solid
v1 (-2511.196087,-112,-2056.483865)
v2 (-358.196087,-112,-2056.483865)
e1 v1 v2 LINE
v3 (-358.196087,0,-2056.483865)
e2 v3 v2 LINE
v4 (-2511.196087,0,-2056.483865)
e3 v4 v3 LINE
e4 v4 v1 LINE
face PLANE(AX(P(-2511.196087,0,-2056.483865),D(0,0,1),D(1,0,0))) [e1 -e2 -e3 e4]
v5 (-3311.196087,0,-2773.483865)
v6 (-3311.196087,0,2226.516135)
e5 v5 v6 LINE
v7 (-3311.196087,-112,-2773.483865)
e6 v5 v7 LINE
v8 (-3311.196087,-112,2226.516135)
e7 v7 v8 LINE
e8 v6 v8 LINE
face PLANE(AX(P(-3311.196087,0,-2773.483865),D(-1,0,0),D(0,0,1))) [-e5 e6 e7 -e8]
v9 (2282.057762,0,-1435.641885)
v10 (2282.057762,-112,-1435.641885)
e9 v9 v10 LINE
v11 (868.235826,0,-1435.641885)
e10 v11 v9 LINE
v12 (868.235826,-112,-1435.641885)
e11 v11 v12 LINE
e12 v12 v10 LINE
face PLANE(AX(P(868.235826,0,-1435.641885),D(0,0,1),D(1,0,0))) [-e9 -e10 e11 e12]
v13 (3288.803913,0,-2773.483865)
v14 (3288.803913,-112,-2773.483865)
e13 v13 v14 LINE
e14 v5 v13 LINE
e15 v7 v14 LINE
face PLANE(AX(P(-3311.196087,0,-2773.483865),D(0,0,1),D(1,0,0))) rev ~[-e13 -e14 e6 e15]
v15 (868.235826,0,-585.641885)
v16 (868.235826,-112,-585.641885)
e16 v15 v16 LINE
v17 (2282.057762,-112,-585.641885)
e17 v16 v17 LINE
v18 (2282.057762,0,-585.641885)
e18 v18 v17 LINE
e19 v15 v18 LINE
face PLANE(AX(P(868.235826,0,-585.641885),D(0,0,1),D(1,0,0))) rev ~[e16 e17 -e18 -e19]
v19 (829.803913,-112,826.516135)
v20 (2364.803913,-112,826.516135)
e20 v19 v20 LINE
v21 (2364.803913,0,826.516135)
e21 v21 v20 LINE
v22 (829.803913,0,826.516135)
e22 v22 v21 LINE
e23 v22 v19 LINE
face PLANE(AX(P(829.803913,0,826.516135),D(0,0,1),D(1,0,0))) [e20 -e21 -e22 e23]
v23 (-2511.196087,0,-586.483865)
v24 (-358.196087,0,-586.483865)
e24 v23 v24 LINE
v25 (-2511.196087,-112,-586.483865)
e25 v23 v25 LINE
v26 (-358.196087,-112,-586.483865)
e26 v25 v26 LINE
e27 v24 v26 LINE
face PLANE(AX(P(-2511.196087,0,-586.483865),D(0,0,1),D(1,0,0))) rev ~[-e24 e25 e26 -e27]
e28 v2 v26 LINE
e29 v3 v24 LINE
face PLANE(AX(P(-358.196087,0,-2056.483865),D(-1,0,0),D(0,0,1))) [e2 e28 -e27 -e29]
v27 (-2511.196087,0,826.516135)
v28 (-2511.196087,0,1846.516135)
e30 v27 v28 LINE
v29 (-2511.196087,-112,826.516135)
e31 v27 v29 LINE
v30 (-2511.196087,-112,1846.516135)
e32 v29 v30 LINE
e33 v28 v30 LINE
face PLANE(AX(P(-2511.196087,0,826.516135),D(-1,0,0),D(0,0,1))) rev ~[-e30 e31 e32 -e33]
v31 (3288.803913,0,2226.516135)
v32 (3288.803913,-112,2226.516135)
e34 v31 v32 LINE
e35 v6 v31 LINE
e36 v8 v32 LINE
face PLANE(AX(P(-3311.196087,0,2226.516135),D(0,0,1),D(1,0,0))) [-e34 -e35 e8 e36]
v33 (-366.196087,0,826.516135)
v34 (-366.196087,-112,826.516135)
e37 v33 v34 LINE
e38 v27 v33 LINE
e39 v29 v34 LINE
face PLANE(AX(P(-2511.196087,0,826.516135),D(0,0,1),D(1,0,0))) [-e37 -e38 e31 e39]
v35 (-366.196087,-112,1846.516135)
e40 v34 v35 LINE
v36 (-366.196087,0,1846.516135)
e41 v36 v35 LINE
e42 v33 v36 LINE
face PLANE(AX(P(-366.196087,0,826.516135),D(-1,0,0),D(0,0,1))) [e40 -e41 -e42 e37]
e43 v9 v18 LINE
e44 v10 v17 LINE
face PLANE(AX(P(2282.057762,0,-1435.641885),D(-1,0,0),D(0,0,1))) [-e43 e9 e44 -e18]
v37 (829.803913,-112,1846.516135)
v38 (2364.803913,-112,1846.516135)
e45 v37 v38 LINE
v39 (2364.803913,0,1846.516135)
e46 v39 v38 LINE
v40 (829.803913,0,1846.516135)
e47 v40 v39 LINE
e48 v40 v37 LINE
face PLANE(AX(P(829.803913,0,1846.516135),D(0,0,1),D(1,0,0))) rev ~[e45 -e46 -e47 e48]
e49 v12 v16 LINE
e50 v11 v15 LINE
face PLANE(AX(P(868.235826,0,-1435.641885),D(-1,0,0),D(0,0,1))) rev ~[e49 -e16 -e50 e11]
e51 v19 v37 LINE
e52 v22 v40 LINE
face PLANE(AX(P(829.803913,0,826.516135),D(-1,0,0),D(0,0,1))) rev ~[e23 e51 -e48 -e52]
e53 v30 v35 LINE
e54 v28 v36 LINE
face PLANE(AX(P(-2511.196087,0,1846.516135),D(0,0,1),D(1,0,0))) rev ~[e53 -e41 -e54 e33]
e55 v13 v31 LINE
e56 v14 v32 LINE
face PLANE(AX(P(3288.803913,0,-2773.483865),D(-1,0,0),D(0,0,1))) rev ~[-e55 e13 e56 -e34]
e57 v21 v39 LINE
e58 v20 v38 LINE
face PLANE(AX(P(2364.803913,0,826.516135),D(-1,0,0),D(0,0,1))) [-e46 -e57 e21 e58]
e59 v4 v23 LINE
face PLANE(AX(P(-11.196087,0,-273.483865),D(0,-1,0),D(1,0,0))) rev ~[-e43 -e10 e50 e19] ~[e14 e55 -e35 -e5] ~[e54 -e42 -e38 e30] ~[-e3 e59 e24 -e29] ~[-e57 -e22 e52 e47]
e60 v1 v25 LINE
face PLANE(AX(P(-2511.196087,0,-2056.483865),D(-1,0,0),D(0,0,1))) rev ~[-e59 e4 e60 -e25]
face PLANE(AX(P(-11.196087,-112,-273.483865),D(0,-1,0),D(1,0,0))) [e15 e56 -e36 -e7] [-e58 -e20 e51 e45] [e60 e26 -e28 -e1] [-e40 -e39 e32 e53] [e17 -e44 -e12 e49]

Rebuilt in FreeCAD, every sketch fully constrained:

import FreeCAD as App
import Part
import Sketcher

V = App.Vector
Q = App.Units.Quantity

doc = App.newDocument("Part")
params = doc.addObject("Spreadsheet::Sheet", "Params")
for row, (alias, value) in enumerate([
    ("sketch1_width", "6600 mm"),
    ("sketch1_width2", "2153 mm"),
    ("sketch1_width3", "2145 mm"),
    ("sketch1_width4", "1535 mm"),
    ("sketch1_height", "5000 mm"),
    ("pad1_length", "112 mm"),
], start=1):
    params.set(f"A{row}", alias)
    params.set(f"B{row}", "=" + value)
    params.setAlias(f"B{row}", alias)

body = doc.addObject("PartDesign::Body", "Body")

# Sketch on XZ plane
sketch1 = body.newObject("Sketcher::SketchObject", "Sketch")
sketch1.AttachmentSupport = (doc.getObject("XZ_Plane"), [""])
sketch1.MapMode = "FlatFace"
sketch1.addGeometry(Part.LineSegment(V(-3311, 2227, 0), V(-3311, -2773, 0)), False)
sketch1.addGeometry(Part.LineSegment(V(-3311, -2773, 0), V(3289, -2773, 0)), False)
sketch1.addGeometry(Part.LineSegment(V(3289, -2773, 0), V(3289, 2227, 0)), False)
sketch1.addGeometry(Part.LineSegment(V(3289, 2227, 0), V(-3311, 2227, 0)), False)
sketch1.addGeometry(Part.LineSegment(V(-358, -2056, 0), V(-2511, -2056, 0)), False)
sketch1.addGeometry(Part.LineSegment(V(-2511, -2056, 0), V(-2511, -586, 0)), False)
sketch1.addGeometry(Part.LineSegment(V(-2511, -586, 0), V(-358, -586, 0)), False)
sketch1.addGeometry(Part.LineSegment(V(-358, -586, 0), V(-358, -2056, 0)), False)
sketch1.addGeometry(Part.LineSegment(V(2282, -1436, 0), V(868, -1436, 0)), False)
sketch1.addGeometry(Part.LineSegment(V(868, -1436, 0), V(868, -586, 0)), False)
sketch1.addGeometry(Part.LineSegment(V(868, -586, 0), V(2282, -586, 0)), False)
sketch1.addGeometry(Part.LineSegment(V(2282, -586, 0), V(2282, -1436, 0)), False)
sketch1.addGeometry(Part.LineSegment(V(-366, 827, 0), V(-2511, 827, 0)), False)
sketch1.addGeometry(Part.LineSegment(V(-2511, 827, 0), V(-2511, 1847, 0)), False)
sketch1.addGeometry(Part.LineSegment(V(-2511, 1847, 0), V(-366, 1847, 0)), False)
sketch1.addGeometry(Part.LineSegment(V(-366, 1847, 0), V(-366, 827, 0)), False)
sketch1.addGeometry(Part.LineSegment(V(2365, 827, 0), V(830, 827, 0)), False)
sketch1.addGeometry(Part.LineSegment(V(830, 827, 0), V(830, 1847, 0)), False)
sketch1.addGeometry(Part.LineSegment(V(830, 1847, 0), V(2365, 1847, 0)), False)
sketch1.addGeometry(Part.LineSegment(V(2365, 1847, 0), V(2365, 827, 0)), False)
sketch1.addConstraint(Sketcher.Constraint("Coincident", 0, 2, 1, 1))
sketch1.addConstraint(Sketcher.Constraint("Coincident", 1, 2, 2, 1))
sketch1.addConstraint(Sketcher.Constraint("Coincident", 2, 2, 3, 1))
sketch1.addConstraint(Sketcher.Constraint("Coincident", 3, 2, 0, 1))
sketch1.addConstraint(Sketcher.Constraint("Coincident", 4, 2, 5, 1))
sketch1.addConstraint(Sketcher.Constraint("Coincident", 5, 2, 6, 1))
sketch1.addConstraint(Sketcher.Constraint("Coincident", 6, 2, 7, 1))
sketch1.addConstraint(Sketcher.Constraint("Coincident", 7, 2, 4, 1))
sketch1.addConstraint(Sketcher.Constraint("Coincident", 8, 2, 9, 1))
sketch1.addConstraint(Sketcher.Constraint("Coincident", 9, 2, 10, 1))
sketch1.addConstraint(Sketcher.Constraint("Coincident", 10, 2, 11, 1))
sketch1.addConstraint(Sketcher.Constraint("Coincident", 11, 2, 8, 1))
sketch1.addConstraint(Sketcher.Constraint("Coincident", 12, 2, 13, 1))
sketch1.addConstraint(Sketcher.Constraint("Coincident", 13, 2, 14, 1))
sketch1.addConstraint(Sketcher.Constraint("Coincident", 14, 2, 15, 1))
sketch1.addConstraint(Sketcher.Constraint("Coincident", 15, 2, 12, 1))
sketch1.addConstraint(Sketcher.Constraint("Coincident", 16, 2, 17, 1))
sketch1.addConstraint(Sketcher.Constraint("Coincident", 17, 2, 18, 1))
sketch1.addConstraint(Sketcher.Constraint("Coincident", 18, 2, 19, 1))
sketch1.addConstraint(Sketcher.Constraint("Coincident", 19, 2, 16, 1))
sketch1.addConstraint(Sketcher.Constraint("Vertical", 0))
sketch1.addConstraint(Sketcher.Constraint("Horizontal", 1))
sketch1.addConstraint(Sketcher.Constraint("Vertical", 2))
sketch1.addConstraint(Sketcher.Constraint("Horizontal", 3))
sketch1.addConstraint(Sketcher.Constraint("Horizontal", 4))
sketch1.addConstraint(Sketcher.Constraint("Vertical", 5))
sketch1.addConstraint(Sketcher.Constraint("Horizontal", 6))
sketch1.addConstraint(Sketcher.Constraint("Vertical", 7))
sketch1.addConstraint(Sketcher.Constraint("Horizontal", 8))
sketch1.addConstraint(Sketcher.Constraint("Vertical", 9))
sketch1.addConstraint(Sketcher.Constraint("Horizontal", 10))
sketch1.addConstraint(Sketcher.Constraint("Vertical", 11))
sketch1.addConstraint(Sketcher.Constraint("Horizontal", 12))
sketch1.addConstraint(Sketcher.Constraint("Vertical", 13))
sketch1.addConstraint(Sketcher.Constraint("Horizontal", 14))
sketch1.addConstraint(Sketcher.Constraint("Vertical", 15))
sketch1.addConstraint(Sketcher.Constraint("Horizontal", 16))
sketch1.addConstraint(Sketcher.Constraint("Vertical", 17))
sketch1.addConstraint(Sketcher.Constraint("Horizontal", 18))
sketch1.addConstraint(Sketcher.Constraint("Vertical", 19))
sketch1.addConstraint(Sketcher.Constraint("Horizontal", 15, 2, 16, 2))
sketch1.addConstraint(Sketcher.Constraint("Horizontal", 14, 2, 17, 2))
sketch1.addConstraint(Sketcher.Constraint("Vertical", 5, 2, 12, 2))
sketch1.addConstraint(Sketcher.Constraint("DistanceX", 1, 1, 1, 2, Q("6600 mm")))
sketch1.addConstraint(Sketcher.Constraint("DistanceX", 4, 2, 4, 1, Q("2153 mm")))
sketch1.addConstraint(Sketcher.Constraint("DistanceX", 12, 2, 12, 1, Q("2145 mm")))
sketch1.addConstraint(Sketcher.Constraint("DistanceX", 16, 2, 16, 1, Q("1535 mm")))
sketch1.addConstraint(Sketcher.Constraint("DistanceY", 0, 2, 0, 1, Q("5000 mm")))
sketch1.addConstraint(Sketcher.Constraint("DistanceY", 5, 1, 5, 2, Q("1470 mm")))
sketch1.addConstraint(Sketcher.Constraint("DistanceY", 9, 1, 9, 2, Q("850 mm")))
sketch1.addConstraint(Sketcher.Constraint("DistanceY", 13, 1, 13, 2, Q("1020 mm")))
sketch1.addConstraint(Sketcher.Constraint("DistanceX", 0, 2, 4, 2, Q("800 mm")))
sketch1.addConstraint(Sketcher.Constraint("DistanceY", 0, 2, 4, 2, Q("717 mm")))
sketch1.addConstraint(Sketcher.Constraint("DistanceY", 5, 2, 12, 2, Q("1413 mm")))
sketch1.addConstraint(Sketcher.Constraint("DistanceX", 15, 2, 16, 2, Q("1196 mm")))
sketch1.addConstraint(Sketcher.Constraint("DistanceX", 8, 2, 8, 1, Q("1413.821936 mm")))
sketch1.addConstraint(Sketcher.Constraint("DistanceX", -1, 1, 10, 2, Q("2282.057762 mm")))
sketch1.addConstraint(Sketcher.Constraint("DistanceY", 7, 2, 8, 2, Q("620.84198 mm")))
sketch1.addConstraint(Sketcher.Constraint("DistanceX", 10, 2, 1, 2, Q("1006.746151 mm")))
sketch1.addConstraint(Sketcher.Constraint("DistanceY", 0, 2, -1, 1, Q("2773.483865 mm")))
sketch1.setExpression("Constraints[43]", "Params.sketch1_width")
sketch1.setExpression("Constraints[44]", "Params.sketch1_width2")
sketch1.setExpression("Constraints[45]", "Params.sketch1_width3")
sketch1.setExpression("Constraints[46]", "Params.sketch1_width4")
sketch1.setExpression("Constraints[47]", "Params.sketch1_height")
pad1 = body.newObject("PartDesign::Pad", "Pad")
pad1.Profile = sketch1
pad1.setExpression("Length", "Params.pad1_length")

doc.recompute()
